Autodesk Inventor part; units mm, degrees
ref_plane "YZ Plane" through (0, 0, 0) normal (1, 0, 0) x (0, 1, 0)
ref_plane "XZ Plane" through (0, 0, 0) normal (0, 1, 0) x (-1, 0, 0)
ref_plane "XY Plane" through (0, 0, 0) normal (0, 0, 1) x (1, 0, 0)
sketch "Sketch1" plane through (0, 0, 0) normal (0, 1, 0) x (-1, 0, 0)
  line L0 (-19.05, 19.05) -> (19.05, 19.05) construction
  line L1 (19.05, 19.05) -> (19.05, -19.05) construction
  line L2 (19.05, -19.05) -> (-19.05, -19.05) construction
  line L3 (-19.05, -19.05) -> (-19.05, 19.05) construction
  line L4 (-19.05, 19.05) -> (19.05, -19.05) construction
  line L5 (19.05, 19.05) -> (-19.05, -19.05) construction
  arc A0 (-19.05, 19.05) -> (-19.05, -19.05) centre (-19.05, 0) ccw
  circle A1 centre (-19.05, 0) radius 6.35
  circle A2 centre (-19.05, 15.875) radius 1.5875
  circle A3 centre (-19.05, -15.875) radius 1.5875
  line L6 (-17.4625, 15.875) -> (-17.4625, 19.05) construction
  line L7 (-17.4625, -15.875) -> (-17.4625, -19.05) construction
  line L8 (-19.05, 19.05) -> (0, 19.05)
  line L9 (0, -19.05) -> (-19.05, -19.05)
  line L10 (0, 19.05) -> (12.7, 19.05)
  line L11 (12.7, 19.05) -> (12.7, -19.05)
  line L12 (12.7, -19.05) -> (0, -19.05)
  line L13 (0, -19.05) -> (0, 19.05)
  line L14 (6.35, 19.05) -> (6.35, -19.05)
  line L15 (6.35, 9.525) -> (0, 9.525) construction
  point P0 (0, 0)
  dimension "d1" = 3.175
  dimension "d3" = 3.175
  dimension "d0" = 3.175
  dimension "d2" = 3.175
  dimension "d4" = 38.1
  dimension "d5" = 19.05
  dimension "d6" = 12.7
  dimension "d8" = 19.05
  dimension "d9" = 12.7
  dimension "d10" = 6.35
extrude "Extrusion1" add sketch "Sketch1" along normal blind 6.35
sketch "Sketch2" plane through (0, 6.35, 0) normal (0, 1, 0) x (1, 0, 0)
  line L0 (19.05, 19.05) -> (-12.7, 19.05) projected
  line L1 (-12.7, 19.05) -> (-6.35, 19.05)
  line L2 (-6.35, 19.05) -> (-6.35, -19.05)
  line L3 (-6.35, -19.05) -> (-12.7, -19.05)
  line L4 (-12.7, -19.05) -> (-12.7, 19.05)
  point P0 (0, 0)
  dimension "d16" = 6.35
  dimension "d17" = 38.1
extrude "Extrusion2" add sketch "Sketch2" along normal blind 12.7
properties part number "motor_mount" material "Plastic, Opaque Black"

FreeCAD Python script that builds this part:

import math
import FreeCAD as App
import Part
import Sketcher

V = App.Vector
Q = App.Units.Quantity

doc = App.newDocument("Part")
body = doc.addObject("PartDesign::Body", "Body")

sketch1 = body.newObject("Sketcher::SketchObject", "Sketch")
sketch1.AttachmentSupport = (doc.getObject("XZ_Plane"), [""])
sketch1.MapMode = "FlatFace"
sketch1.addGeometry([
    Part.ArcOfCircle(Part.Circle(V(19.1, 0, 0), V(0, 0, 1), 19.1), math.radians(-90), math.radians(90)),
    Part.LineSegment(V(19.1, -19.1, 0), V(-12.7, -19.1, 0)),
    Part.LineSegment(V(-12.7, -19.1, 0), V(-12.7, 19.1, 0)),
    Part.LineSegment(V(-12.7, 19.1, 0), V(19.1, 19.1, 0)),
    Part.Circle(V(19.1, -15.9, 0), V(0, 0, 1), 1.6),
    Part.Circle(V(19.1, 0, 0), V(0, 0, 1), 6.3),
    Part.Circle(V(19.1, 15.9, 0), V(0, 0, 1), 1.6),
], False)
sketch1.addConstraint([
    Sketcher.Constraint("Tangent", 0, 1, 1, 1),
    Sketcher.Constraint("Coincident", 1, 2, 2, 1),
    Sketcher.Constraint("Coincident", 2, 2, 3, 1),
    Sketcher.Constraint("Tangent", 3, 2, 0, 2),
    Sketcher.Constraint("Horizontal", 1),
    Sketcher.Constraint("Vertical", 2),
    Sketcher.Constraint("Horizontal", 3),
    Sketcher.Constraint("Coincident", 5, 3, 0, 3),
    Sketcher.Constraint("Equal", 4, 6),
    Sketcher.Constraint("Symmetric", 4, 3, 6, 3, -1),
    Sketcher.Constraint("PointOnObject", 0, 3, -1),
    Sketcher.Constraint("Vertical", 0, 3, 4, 3),
    Sketcher.Constraint("Diameter", 5, Q("0.5 in")),
    Sketcher.Constraint("Radius", 0, Q("0.75 in")),
    Sketcher.Constraint("Diameter", 4, Q("0.125 in")),
    Sketcher.Constraint("DistanceX", 1, 2, -1, 1, Q("0.5 in")),
    Sketcher.Constraint("DistanceX", -1, 1, 0, 3, Q("0.75 in")),
    Sketcher.Constraint("DistanceY", 0, 1, 4, 3, Q("0.125 in")),
])
pad1 = body.newObject("PartDesign::Pad", "Pad")
pad1.Profile = sketch1
pad1.Length = Q("0.25 in")
pad1.Reversed = True

sketch2 = body.newObject("Sketcher::SketchObject", "Sketch001")
sketch2.AttachmentSupport = (doc.getObject("XZ_Plane"), [""])
sketch2.MapMode = "FlatFace"
sketch2.AttachmentOffset = App.Placement(V(0, 0, -0.25 * 25.4), App.Rotation())
sketch2.addGeometry([
    Part.LineSegment(V(-6, 19, 0), V(-6, -19, 0)),
    Part.LineSegment(V(-6, -19, 0), V(-13, -19, 0)),
    Part.LineSegment(V(-13, -19, 0), V(-13, 19, 0)),
    Part.LineSegment(V(-13, 19, 0), V(-6, 19, 0)),
], False)
sketch2.addConstraint([
    Sketcher.Constraint("Coincident", 0, 2, 1, 1),
    Sketcher.Constraint("Coincident", 1, 2, 2, 1),
    Sketcher.Constraint("Coincident", 2, 2, 3, 1),
    Sketcher.Constraint("Coincident", 3, 2, 0, 1),
    Sketcher.Constraint("Vertical", 0),
    Sketcher.Constraint("Horizontal", 1),
    Sketcher.Constraint("Vertical", 2),
    Sketcher.Constraint("Horizontal", 3),
    Sketcher.Constraint("DistanceY", 0, 2, 0, 1, Q("1.5 in")),
    Sketcher.Constraint("DistanceX", 1, 2, 1, 1, Q("0.25 in")),
    Sketcher.Constraint("DistanceX", 0, 2, -1, 1, Q("0.25 in")),
    Sketcher.Constraint("DistanceY", 0, 2, -1, 1, Q("0.75 in")),
])
pad2 = body.newObject("PartDesign::Pad", "Pad001")
pad2.Profile = sketch2
pad2.Length = Q("0.5 in")
pad2.Reversed = True

doc.recompute()
